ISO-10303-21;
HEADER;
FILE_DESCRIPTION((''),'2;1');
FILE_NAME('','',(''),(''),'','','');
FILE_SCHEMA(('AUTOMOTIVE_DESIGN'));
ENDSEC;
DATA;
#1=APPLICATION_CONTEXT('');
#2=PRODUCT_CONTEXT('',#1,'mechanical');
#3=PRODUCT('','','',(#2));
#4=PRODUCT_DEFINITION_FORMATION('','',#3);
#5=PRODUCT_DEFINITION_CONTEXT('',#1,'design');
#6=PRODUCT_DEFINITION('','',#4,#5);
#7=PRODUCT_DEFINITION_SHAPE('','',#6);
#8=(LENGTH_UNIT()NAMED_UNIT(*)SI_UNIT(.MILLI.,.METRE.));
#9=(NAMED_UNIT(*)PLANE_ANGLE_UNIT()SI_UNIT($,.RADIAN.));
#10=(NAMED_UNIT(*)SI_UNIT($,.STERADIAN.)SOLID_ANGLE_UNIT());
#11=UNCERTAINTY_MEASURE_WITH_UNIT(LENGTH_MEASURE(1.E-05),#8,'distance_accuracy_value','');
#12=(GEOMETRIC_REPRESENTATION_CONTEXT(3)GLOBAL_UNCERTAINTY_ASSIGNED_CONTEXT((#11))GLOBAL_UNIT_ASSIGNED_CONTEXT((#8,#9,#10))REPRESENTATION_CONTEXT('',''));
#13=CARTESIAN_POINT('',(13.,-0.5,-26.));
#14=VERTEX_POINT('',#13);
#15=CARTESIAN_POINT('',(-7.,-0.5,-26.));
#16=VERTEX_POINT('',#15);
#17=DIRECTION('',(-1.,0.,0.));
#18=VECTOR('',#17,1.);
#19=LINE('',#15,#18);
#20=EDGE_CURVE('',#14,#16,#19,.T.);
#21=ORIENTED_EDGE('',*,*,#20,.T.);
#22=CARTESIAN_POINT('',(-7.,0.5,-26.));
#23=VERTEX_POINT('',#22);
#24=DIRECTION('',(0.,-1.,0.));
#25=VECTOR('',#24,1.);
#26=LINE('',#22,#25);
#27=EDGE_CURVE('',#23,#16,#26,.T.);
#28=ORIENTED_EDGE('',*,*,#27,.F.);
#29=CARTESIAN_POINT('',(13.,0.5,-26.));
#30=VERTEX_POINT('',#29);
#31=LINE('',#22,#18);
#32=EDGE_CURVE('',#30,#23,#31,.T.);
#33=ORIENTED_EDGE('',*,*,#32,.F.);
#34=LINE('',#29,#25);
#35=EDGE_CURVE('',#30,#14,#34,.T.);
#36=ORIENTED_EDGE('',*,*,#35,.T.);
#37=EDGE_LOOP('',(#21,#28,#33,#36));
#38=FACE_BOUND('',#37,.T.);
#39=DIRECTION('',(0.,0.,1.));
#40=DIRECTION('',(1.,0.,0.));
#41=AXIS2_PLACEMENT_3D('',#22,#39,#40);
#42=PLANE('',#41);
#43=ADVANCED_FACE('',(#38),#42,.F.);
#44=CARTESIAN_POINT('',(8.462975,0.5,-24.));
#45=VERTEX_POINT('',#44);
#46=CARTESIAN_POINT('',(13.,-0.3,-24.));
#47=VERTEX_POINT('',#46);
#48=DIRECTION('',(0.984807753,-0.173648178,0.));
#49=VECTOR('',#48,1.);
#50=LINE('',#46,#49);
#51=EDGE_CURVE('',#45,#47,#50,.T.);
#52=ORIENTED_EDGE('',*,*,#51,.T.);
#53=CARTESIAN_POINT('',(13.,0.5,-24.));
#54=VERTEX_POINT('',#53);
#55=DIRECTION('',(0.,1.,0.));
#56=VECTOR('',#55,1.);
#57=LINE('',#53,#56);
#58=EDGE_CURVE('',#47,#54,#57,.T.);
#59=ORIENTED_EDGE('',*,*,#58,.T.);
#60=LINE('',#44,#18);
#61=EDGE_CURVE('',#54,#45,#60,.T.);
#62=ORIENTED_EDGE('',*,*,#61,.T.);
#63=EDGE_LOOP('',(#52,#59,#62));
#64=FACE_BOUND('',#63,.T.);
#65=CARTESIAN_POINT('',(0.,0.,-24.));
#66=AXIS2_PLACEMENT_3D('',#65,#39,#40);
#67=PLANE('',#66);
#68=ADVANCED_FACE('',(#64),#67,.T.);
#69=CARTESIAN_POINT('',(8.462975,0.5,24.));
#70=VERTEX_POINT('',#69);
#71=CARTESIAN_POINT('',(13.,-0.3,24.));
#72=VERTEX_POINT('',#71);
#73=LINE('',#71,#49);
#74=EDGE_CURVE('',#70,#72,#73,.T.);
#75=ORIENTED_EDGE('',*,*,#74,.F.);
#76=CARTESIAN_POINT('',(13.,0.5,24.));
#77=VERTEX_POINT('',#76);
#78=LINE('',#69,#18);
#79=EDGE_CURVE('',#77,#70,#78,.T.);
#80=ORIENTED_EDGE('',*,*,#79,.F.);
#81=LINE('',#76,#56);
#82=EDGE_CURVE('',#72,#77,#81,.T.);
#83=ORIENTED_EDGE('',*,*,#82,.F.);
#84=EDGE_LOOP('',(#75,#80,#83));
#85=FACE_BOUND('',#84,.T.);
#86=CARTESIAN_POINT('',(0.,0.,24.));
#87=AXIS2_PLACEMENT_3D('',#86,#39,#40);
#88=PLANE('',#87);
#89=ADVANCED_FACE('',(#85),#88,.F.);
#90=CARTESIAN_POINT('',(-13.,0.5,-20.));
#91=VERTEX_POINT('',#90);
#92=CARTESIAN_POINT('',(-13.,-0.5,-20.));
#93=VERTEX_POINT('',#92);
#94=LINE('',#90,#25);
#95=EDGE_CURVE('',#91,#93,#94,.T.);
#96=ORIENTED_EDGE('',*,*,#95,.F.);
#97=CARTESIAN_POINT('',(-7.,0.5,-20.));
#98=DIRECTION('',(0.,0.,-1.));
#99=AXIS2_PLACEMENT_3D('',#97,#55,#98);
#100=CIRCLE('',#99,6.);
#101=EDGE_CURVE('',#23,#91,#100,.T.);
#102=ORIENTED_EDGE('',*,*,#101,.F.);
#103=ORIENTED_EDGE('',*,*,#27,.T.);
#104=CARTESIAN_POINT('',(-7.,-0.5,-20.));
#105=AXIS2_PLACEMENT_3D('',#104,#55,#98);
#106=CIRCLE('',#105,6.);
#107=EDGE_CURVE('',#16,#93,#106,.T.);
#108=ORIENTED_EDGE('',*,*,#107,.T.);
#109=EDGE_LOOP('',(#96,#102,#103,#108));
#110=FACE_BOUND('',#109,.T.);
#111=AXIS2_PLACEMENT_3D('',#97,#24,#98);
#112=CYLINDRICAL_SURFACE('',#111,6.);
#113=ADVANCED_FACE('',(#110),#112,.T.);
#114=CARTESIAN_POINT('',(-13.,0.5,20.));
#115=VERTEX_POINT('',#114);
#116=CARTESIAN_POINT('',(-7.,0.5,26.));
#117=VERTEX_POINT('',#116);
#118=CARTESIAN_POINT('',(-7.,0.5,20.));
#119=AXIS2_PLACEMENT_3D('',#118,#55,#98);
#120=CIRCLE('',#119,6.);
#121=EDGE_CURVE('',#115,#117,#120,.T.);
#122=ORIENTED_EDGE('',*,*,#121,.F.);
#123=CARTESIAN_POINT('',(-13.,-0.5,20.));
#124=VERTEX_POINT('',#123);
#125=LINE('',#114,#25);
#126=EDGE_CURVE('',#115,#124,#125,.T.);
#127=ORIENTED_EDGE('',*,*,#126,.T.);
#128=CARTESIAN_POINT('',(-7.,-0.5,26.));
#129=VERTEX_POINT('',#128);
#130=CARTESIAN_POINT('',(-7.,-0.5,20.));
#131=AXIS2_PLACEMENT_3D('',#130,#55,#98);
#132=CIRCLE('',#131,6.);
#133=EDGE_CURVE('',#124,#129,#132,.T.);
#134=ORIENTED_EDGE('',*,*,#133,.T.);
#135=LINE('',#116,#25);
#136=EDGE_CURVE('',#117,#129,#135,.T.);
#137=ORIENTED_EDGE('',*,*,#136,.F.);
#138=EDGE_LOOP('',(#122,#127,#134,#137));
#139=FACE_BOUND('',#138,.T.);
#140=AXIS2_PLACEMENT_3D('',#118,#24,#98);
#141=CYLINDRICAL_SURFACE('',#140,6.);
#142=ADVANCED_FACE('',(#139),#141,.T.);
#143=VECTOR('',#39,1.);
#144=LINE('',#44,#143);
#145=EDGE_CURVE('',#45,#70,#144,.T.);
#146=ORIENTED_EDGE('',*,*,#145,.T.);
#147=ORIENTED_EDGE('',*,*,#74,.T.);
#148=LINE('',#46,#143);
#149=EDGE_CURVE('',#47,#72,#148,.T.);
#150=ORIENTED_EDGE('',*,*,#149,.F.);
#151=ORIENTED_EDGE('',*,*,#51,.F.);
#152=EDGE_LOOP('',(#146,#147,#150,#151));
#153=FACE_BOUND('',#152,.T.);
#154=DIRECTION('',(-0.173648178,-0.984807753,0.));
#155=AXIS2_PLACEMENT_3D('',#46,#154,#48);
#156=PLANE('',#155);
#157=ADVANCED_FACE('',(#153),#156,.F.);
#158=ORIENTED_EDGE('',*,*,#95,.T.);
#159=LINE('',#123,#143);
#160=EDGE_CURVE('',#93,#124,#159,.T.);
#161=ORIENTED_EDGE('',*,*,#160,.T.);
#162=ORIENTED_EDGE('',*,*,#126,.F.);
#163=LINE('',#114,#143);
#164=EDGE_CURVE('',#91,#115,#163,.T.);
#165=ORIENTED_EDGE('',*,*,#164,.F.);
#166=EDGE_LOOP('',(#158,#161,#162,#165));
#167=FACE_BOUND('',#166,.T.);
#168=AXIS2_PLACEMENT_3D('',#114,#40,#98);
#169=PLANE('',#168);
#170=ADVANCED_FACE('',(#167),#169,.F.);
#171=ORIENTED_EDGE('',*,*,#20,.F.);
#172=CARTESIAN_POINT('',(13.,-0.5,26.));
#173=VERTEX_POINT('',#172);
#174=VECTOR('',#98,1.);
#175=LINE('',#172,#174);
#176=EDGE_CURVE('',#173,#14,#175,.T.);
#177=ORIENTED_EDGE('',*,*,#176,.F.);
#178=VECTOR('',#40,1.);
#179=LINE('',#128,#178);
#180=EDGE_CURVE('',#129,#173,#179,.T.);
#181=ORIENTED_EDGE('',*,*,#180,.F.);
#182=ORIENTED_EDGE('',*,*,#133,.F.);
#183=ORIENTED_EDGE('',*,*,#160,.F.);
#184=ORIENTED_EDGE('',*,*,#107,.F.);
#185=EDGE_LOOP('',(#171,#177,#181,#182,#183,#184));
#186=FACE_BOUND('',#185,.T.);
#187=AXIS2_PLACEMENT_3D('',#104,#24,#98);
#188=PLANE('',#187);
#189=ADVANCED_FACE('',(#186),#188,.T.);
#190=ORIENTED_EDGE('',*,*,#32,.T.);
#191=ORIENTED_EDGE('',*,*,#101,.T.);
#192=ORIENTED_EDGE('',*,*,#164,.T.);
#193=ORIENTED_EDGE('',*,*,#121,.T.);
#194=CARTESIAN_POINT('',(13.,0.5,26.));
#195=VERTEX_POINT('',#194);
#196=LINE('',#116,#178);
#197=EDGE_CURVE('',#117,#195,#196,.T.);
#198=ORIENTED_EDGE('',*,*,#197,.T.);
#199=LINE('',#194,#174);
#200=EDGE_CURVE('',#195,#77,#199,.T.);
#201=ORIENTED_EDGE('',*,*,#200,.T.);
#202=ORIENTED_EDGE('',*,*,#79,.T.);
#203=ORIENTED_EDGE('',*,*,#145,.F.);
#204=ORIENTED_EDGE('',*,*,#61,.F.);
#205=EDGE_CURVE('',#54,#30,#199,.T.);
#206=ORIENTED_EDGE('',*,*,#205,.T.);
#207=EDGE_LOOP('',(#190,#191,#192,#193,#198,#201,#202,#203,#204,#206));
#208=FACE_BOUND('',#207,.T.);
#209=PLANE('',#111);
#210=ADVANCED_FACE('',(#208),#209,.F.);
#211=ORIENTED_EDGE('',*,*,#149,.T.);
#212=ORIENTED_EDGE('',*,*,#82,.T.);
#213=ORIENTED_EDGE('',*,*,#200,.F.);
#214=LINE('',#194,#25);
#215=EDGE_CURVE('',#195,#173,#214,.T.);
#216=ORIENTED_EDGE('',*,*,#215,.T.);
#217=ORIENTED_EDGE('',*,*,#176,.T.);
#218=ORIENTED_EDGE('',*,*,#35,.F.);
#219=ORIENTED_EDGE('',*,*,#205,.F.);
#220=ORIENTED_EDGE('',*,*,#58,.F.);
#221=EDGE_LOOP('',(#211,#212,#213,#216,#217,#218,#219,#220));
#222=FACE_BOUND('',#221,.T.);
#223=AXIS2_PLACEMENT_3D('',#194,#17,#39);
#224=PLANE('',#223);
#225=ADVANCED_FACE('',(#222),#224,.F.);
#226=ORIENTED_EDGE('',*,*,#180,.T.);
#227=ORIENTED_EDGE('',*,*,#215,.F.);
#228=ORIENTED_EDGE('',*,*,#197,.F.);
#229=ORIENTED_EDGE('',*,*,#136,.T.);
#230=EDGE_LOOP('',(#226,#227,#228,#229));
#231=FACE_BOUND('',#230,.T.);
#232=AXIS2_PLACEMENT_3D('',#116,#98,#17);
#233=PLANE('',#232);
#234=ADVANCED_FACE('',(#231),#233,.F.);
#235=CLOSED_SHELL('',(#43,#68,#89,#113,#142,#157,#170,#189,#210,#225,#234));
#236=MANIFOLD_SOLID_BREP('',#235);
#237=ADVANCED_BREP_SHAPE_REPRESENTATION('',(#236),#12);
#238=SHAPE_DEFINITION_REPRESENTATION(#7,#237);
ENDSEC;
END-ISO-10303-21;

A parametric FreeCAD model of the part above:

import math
import FreeCAD as App
import Part
import Sketcher

V = App.Vector
Q = App.Units.Quantity

doc = App.newDocument("Part")
params = doc.addObject("Spreadsheet::Sheet", "Params")
for row, (alias, value) in enumerate([
    ("sketch1_radius", "6 mm"),
    ("sketch1_width", "20 mm"),
    ("sketch1_height", "52 mm"),
    ("pad1_length", "1 mm"),
    ("sketch2_height", "0.8 mm"),
    ("pocket1_length", "48 mm"),
], start=1):
    params.set(f"A{row}", alias)
    params.set(f"B{row}", "=" + value)
    params.setAlias(f"B{row}", alias)

body = doc.addObject("PartDesign::Body", "Body")

# Sketch on XZ plane
sketch1 = body.newObject("Sketcher::SketchObject", "Sketch")
sketch1.AttachmentSupport = (doc.getObject("XZ_Plane"), [""])
sketch1.MapMode = "FlatFace"
sketch1.addGeometry([
    Part.LineSegment(V(-7, 26, 0), V(13, 26, 0)),  # 0
    Part.LineSegment(V(13, 26, 0), V(13, -26, 0)),  # 1
    Part.LineSegment(V(13, -26, 0), V(-7, -26, 0)),  # 2
    Part.ArcOfCircle(Part.Circle(V(-7, -20, 0), V(0, 0, 1), 6), math.radians(180), math.radians(270)),  # 3
    Part.LineSegment(V(-13, -20, 0), V(-13, 20, 0)),  # 4
    Part.ArcOfCircle(Part.Circle(V(-7, 20, 0), V(0, 0, 1), 6), math.radians(90), math.radians(180)),  # 5
], False)
sketch1.addConstraint([
    Sketcher.Constraint("Coincident", 0, 2, 1, 1),
    Sketcher.Constraint("Coincident", 1, 2, 2, 1),
    Sketcher.Constraint("Tangent", 2, 2, 3, 2),
    Sketcher.Constraint("Tangent", 3, 1, 4, 1),
    Sketcher.Constraint("Tangent", 4, 2, 5, 2),
    Sketcher.Constraint("Tangent", 5, 1, 0, 1),
    Sketcher.Constraint("Horizontal", 0),
    Sketcher.Constraint("Vertical", 1),
    Sketcher.Constraint("Horizontal", 2),
    Sketcher.Constraint("Vertical", 4),
    Sketcher.Constraint("Equal", 3, 5),
    Sketcher.Constraint("Radius", 3, 6.0),
    Sketcher.Constraint("DistanceX", 0, 1, 0, 2, 20.0),
    Sketcher.Constraint("DistanceY", 1, 2, 1, 1, 52.0),
    Sketcher.Constraint("DistanceX", 3, 3, -1, 1, 7.0),
    Sketcher.Constraint("DistanceY", 3, 3, -1, 1, 20.0),
])
sketch1.setExpression("Constraints[11]", "Params.sketch1_radius")
sketch1.setExpression("Constraints[12]", "Params.sketch1_width")
sketch1.setExpression("Constraints[13]", "Params.sketch1_height")
pad1 = body.newObject("PartDesign::Pad", "Pad")
pad1.Profile = sketch1
pad1.setExpression("Length", "Params.pad1_length")
pad1.Midplane = True

# Sketch on XY plane
sketch2 = body.newObject("Sketcher::SketchObject", "Sketch001")
sketch2.AttachmentSupport = (doc.getObject("XY_Plane"), [""])
sketch2.MapMode = "FlatFace"
sketch2.addGeometry([
    Part.LineSegment(V(8.5, 0.5, 0), V(13, -0.3, 0)),
    Part.LineSegment(V(13, -0.3, 0), V(13, 0.5, 0)),
    Part.LineSegment(V(13, 0.5, 0), V(8.5, 0.5, 0)),
], False)
sketch2.addConstraint([
    Sketcher.Constraint("Coincident", 0, 2, 1, 1),
    Sketcher.Constraint("Coincident", 1, 2, 2, 1),
    Sketcher.Constraint("Coincident", 2, 2, 0, 1),
    Sketcher.Constraint("Vertical", 1),
    Sketcher.Constraint("Horizontal", 2),
    Sketcher.Constraint("Angle", 0, Q("-10 deg")),
    Sketcher.Constraint("DistanceY", 1, 1, 1, 2, 0.8),
    Sketcher.Constraint("DistanceX", -1, 1, 0, 2, 13.0),
    Sketcher.Constraint("DistanceY", 0, 2, -1, 1, 0.3),
])
sketch2.setExpression("Constraints[6]", "Params.sketch2_height")
pocket1 = body.newObject("PartDesign::Pocket", "Pocket")
pocket1.Profile = sketch2
pocket1.setExpression("Length", "Params.pocket1_length")
pocket1.Midplane = True

doc.recompute()
